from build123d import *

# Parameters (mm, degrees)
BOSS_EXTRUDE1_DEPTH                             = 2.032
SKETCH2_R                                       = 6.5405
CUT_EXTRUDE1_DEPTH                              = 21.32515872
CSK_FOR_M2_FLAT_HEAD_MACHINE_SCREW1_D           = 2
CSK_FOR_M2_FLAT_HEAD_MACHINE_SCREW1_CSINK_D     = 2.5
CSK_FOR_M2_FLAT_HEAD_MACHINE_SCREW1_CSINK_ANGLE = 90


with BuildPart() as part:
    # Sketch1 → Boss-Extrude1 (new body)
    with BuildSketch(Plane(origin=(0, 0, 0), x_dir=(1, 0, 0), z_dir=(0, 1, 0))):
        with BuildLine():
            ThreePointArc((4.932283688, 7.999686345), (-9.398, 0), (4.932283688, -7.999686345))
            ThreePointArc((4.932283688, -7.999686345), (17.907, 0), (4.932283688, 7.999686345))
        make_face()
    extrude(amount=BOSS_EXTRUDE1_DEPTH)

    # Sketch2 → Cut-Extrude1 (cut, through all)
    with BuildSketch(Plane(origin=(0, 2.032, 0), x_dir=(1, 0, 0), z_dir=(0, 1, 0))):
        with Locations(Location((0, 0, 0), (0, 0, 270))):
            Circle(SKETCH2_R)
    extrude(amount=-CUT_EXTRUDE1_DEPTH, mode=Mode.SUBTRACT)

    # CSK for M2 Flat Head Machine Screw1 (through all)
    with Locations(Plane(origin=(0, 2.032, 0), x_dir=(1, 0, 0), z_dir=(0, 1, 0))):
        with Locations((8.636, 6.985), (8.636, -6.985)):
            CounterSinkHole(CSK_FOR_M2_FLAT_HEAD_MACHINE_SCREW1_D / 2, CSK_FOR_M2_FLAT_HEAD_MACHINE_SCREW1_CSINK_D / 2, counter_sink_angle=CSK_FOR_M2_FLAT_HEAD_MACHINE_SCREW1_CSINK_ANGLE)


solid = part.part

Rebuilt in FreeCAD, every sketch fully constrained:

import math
import FreeCAD as App
import Part
import Sketcher
Q = App.Units.Quantity

doc = App.newDocument("Part")
body = doc.addObject("PartDesign::Body", "Body")

# Sketch on XZ plane
sketch1 = doc.addObject("Sketcher::SketchObject", "Sketch")
body.addObject(sketch1)
sketch1.AttachmentSupport = (doc.XZ_Plane, [""])
sketch1.MapMode = "FlatFace"
sketch1.addGeometry(Part.ArcOfCircle(Part.Circle(App.Vector(0, 0, 0), App.Vector(0, 0, 1), 9.398), math.radians(58.343692), math.radians(301.656308)), False)
sketch1.addGeometry(Part.ArcOfCircle(Part.Circle(App.Vector(8.9535, 0, 0), App.Vector(0, 0, 1), 8.9535), math.radians(-116.687384), math.radians(116.687384)), False)
sketch1.addConstraint(Sketcher.Constraint("Coincident", 0, 1, 1, 2))
sketch1.addConstraint(Sketcher.Constraint("Coincident", 1, 1, 0, 2))
sketch1.addConstraint(Sketcher.Constraint("Coincident", 0, 3, -1, 1))
sketch1.addConstraint(Sketcher.Constraint("PointOnObject", 1, 3, -1))
sketch1.addConstraint(Sketcher.Constraint("Radius", 0, Q("0.37 in")))
sketch1.addConstraint(Sketcher.Constraint("Radius", 1, Q("0.3525 in")))
sketch1.addConstraint(Sketcher.Constraint("DistanceX", -1, 1, 1, 3, Q("0.3525 in")))
pad1 = doc.addObject("PartDesign::Pad", "Pad")
body.addObject(pad1)
pad1.Profile = sketch1
pad1.Length = Q("0.08 in")
pad1.Reversed = True

# Sketch on XZ plane
sketch2 = doc.addObject("Sketcher::SketchObject", "Sketch001")
body.addObject(sketch2)
sketch2.AttachmentSupport = (doc.XZ_Plane, [""])
sketch2.MapMode = "FlatFace"
sketch2.AttachmentOffset = App.Placement(App.Vector(0, 0, -0.08 * 25.4), App.Rotation())
sketch2.addGeometry(Part.Circle(App.Vector(0, 0, 0), App.Vector(0, 0, 1), 6.5405), False)
sketch2.addConstraint(Sketcher.Constraint("Coincident", 0, 3, -1, 1))
sketch2.addConstraint(Sketcher.Constraint("Diameter", 0, Q("0.515 in")))
pocket1 = doc.addObject("PartDesign::Pocket", "Pocket")
body.addObject(pocket1)
pocket1.Profile = sketch2
pocket1.Type = "ThroughAll"
pocket1.Reversed = True

# Sketch on XZ plane
sketch3 = doc.addObject("Sketcher::SketchObject", "Sketch002")
body.addObject(sketch3)
sketch3.AttachmentSupport = (doc.XZ_Plane, [""])
sketch3.MapMode = "FlatFace"
sketch3.AttachmentOffset = App.Placement(App.Vector(0, 0, -0.08 * 25.4), App.Rotation())
sketch3.addGeometry(Part.Circle(App.Vector(8.636, -6.985, 0), App.Vector(0, 0, 1), 1), False)
sketch3.addGeometry(Part.Circle(App.Vector(8.636, 6.985, 0), App.Vector(0, 0, 1), 1), False)
sketch3.addConstraint(Sketcher.Constraint("Equal", 0, 1))
sketch3.addConstraint(Sketcher.Constraint("Symmetric", 0, 3, 1, 3, -1))
sketch3.addConstraint(Sketcher.Constraint("Diameter", 0, Q("2 mm")))
sketch3.addConstraint(Sketcher.Constraint("DistanceX", -1, 1, 0, 3, Q("0.34 in")))
sketch3.addConstraint(Sketcher.Constraint("DistanceY", 0, 3, 1, 3, Q("0.55 in")))
doc.recompute()
hole = doc.addObject("PartDesign::Hole", "Hole")
body.addObject(hole)
hole.Profile = sketch3
hole.ThreadType = "None"
hole.Diameter = 2
hole.DepthType = "ThroughAll"
hole.HoleCutType = "Countersink"
hole.HoleCutDiameter = 2.5
hole.HoleCutCountersinkAngle = 90
hole.Reversed = True

doc.recompute()
